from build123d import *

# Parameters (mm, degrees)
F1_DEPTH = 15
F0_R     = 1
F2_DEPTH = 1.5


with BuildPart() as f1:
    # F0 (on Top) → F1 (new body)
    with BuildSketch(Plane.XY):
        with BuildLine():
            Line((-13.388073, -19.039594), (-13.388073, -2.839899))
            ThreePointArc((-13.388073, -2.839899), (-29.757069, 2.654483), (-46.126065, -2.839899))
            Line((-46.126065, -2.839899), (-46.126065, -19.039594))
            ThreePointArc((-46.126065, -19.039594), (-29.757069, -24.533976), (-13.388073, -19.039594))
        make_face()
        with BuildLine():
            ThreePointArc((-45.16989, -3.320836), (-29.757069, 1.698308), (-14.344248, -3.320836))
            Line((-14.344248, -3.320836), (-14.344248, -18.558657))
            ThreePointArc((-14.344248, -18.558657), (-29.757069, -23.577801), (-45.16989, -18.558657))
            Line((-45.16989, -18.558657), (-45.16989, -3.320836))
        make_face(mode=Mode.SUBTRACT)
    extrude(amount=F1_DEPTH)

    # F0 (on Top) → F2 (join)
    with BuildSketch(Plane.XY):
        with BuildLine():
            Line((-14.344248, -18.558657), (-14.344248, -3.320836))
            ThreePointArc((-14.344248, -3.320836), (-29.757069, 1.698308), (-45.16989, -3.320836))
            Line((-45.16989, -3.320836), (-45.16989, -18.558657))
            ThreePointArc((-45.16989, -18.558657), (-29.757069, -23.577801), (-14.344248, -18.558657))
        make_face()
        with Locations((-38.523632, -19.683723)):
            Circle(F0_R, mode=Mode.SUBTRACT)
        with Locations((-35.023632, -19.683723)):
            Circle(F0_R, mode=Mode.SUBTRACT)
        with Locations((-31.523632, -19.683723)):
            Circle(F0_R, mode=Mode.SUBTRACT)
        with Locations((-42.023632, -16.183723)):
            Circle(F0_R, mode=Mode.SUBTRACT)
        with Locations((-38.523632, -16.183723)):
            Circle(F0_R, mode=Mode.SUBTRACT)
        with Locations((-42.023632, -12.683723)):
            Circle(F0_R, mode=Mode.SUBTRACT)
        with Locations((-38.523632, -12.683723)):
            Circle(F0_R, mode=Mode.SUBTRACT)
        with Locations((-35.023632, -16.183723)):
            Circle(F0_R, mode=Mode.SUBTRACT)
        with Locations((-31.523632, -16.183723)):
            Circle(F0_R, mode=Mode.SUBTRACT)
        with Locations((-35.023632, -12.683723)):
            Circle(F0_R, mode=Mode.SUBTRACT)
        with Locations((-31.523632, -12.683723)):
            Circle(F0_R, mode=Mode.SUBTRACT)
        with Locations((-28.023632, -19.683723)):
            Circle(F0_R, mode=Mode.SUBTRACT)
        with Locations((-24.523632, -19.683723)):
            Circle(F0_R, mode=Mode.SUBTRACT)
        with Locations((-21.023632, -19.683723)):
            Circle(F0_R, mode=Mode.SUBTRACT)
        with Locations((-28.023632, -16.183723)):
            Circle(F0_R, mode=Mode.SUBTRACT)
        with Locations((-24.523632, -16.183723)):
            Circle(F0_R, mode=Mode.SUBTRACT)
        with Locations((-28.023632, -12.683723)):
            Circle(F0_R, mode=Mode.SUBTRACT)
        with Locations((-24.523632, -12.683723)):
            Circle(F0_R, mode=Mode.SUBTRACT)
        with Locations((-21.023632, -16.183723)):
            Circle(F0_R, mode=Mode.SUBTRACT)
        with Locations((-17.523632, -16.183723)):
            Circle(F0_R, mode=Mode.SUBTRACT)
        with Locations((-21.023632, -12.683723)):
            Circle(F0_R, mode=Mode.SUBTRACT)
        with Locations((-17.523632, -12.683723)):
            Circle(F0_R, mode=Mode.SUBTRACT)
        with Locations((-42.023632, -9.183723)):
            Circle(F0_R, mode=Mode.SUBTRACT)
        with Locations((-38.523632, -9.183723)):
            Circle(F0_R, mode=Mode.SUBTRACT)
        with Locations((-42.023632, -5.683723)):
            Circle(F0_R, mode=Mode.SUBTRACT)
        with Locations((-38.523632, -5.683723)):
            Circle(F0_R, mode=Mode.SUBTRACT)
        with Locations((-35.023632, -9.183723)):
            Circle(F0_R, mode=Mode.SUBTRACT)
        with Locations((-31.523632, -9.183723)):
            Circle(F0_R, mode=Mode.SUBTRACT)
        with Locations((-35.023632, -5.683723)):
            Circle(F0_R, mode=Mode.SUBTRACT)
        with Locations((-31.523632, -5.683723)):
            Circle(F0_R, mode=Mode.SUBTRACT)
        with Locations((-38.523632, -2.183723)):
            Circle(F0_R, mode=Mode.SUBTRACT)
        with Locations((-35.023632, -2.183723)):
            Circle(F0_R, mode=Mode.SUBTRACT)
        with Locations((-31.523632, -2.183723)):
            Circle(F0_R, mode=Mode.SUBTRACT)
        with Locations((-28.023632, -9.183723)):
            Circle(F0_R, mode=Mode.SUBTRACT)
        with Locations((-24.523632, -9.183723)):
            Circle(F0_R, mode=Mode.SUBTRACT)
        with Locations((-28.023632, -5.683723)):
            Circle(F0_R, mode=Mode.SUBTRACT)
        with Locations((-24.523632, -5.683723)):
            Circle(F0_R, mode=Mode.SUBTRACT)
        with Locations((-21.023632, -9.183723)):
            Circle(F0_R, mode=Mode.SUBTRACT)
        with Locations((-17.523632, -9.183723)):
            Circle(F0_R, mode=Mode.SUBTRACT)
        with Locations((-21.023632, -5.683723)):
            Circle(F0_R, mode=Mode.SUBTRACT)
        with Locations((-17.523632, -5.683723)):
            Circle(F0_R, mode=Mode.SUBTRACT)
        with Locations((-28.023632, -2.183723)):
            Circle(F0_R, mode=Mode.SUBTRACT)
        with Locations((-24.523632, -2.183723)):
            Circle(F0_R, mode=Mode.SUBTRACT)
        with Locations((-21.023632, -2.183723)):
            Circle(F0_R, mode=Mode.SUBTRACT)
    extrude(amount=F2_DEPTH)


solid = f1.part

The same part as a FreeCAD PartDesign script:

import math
import FreeCAD as App
import Part
import Sketcher

doc = App.newDocument("Part")
body = doc.addObject("PartDesign::Body", "Body")

# Sketch on XY plane
sketch1 = doc.addObject("Sketcher::SketchObject", "Sketch")
body.addObject(sketch1)
sketch1.AttachmentSupport = (doc.XY_Plane, [""])
sketch1.MapMode = "FlatFace"
sketch1.addGeometry(Part.LineSegment(App.Vector(-13, -19, 0), App.Vector(-13, -3, 0)), False)
sketch1.addGeometry(Part.ArcOfCircle(Part.Circle(App.Vector(-30, -24, 0), App.Vector(0, 0, 1), 27), math.radians(53), math.radians(127)), False)
sketch1.addGeometry(Part.LineSegment(App.Vector(-46, -3, 0), App.Vector(-46, -19, 0)), False)
sketch1.addGeometry(Part.ArcOfCircle(Part.Circle(App.Vector(-30, 3, 0), App.Vector(0, 0, 1), 27), math.radians(-127), math.radians(-53)), False)
sketch1.addGeometry(Part.LineSegment(App.Vector(-45, -19, 0), App.Vector(-45, -3, 0)), False)
sketch1.addGeometry(Part.ArcOfCircle(Part.Circle(App.Vector(-30, -24, 0), App.Vector(0, 0, 1), 26), math.radians(54), math.radians(126)), False)
sketch1.addGeometry(Part.LineSegment(App.Vector(-14, -3, 0), App.Vector(-14, -19, 0)), False)
sketch1.addGeometry(Part.ArcOfCircle(Part.Circle(App.Vector(-30, 3, 0), App.Vector(0, 0, 1), 26), math.radians(-126), math.radians(-54)), False)
sketch1.addConstraint(Sketcher.Constraint("Coincident", 0, 2, 1, 1))
sketch1.addConstraint(Sketcher.Constraint("Coincident", 1, 2, 2, 1))
sketch1.addConstraint(Sketcher.Constraint("Coincident", 2, 2, 3, 1))
sketch1.addConstraint(Sketcher.Constraint("Coincident", 3, 2, 0, 1))
sketch1.addConstraint(Sketcher.Constraint("Coincident", 4, 2, 5, 2))
sketch1.addConstraint(Sketcher.Constraint("Coincident", 5, 1, 6, 1))
sketch1.addConstraint(Sketcher.Constraint("Coincident", 6, 2, 7, 2))
sketch1.addConstraint(Sketcher.Constraint("Coincident", 7, 1, 4, 1))
sketch1.addConstraint(Sketcher.Constraint("Vertical", 0))
sketch1.addConstraint(Sketcher.Constraint("Vertical", 2))
sketch1.addConstraint(Sketcher.Constraint("Vertical", 4))
sketch1.addConstraint(Sketcher.Constraint("Vertical", 6))
sketch1.addConstraint(Sketcher.Constraint("Coincident", 5, 3, 1, 3))
sketch1.addConstraint(Sketcher.Constraint("Coincident", 7, 3, 3, 3))
sketch1.addConstraint(Sketcher.Constraint("Equal", 1, 3))
sketch1.addConstraint(Sketcher.Constraint("Equal", 5, 7))
sketch1.addConstraint(Sketcher.Constraint("Horizontal", 0, 2, 1, 2))
sketch1.addConstraint(Sketcher.Constraint("Horizontal", 2, 2, 3, 2))
sketch1.addConstraint(Sketcher.Constraint("Horizontal", 4, 2, 5, 1))
sketch1.addConstraint(Sketcher.Constraint("Radius", 5, 26.174469))
sketch1.addConstraint(Sketcher.Constraint("Radius", 1, 27.130646))
sketch1.addConstraint(Sketcher.Constraint("DistanceY", 4, 1, 4, 2, 15.237821))
sketch1.addConstraint(Sketcher.Constraint("DistanceY", 0, 2, -1, 1, 2.839899))
sketch1.addConstraint(Sketcher.Constraint("DistanceY", 0, 1, 0, 2, 16.199695))
sketch1.addConstraint(Sketcher.Constraint("DistanceX", 1, 3, -1, 1, 29.757069))
sketch1.addConstraint(Sketcher.Constraint("DistanceY", -1, 1, 3, 3, 2.59667))
pad1 = doc.addObject("PartDesign::Pad", "Pad")
body.addObject(pad1)
pad1.Profile = sketch1
pad1.Length = 15

# Sketch on XY plane
sketch2 = doc.addObject("Sketcher::SketchObject", "Sketch001")
body.addObject(sketch2)
sketch2.AttachmentSupport = (doc.XY_Plane, [""])
sketch2.MapMode = "FlatFace"
sketch2.addGeometry(Part.LineSegment(App.Vector(-14.3, -18.6, 0), App.Vector(-14.3, -3.3, 0)), False)
sketch2.addGeometry(Part.ArcOfCircle(Part.Circle(App.Vector(-29.8, -24.5, 0), App.Vector(0, 0, 1), 26.2), math.radians(54), math.radians(126)), False)
sketch2.addGeometry(Part.LineSegment(App.Vector(-45.2, -3.3, 0), App.Vector(-45.2, -18.6, 0)), False)
sketch2.addGeometry(Part.ArcOfCircle(Part.Circle(App.Vector(-29.8, 2.6, 0), App.Vector(0, 0, 1), 26.2), math.radians(-126), math.radians(-54)), False)
sketch2.addGeometry(Part.Circle(App.Vector(-38.5, -19.7, 0), App.Vector(0, 0, 1), 1), False)
sketch2.addGeometry(Part.Circle(App.Vector(-42, -16.2, 0), App.Vector(0, 0, 1), 1), False)
sketch2.addGeometry(Part.Circle(App.Vector(-38.5, -16.2, 0), App.Vector(0, 0, 1), 1), False)
sketch2.addGeometry(Part.Circle(App.Vector(-35, -19.7, 0), App.Vector(0, 0, 1), 1), False)
sketch2.addGeometry(Part.Circle(App.Vector(-31.5, -19.7, 0), App.Vector(0, 0, 1), 1), False)
sketch2.addGeometry(Part.Circle(App.Vector(-35, -16.2, 0), App.Vector(0, 0, 1), 1), False)
sketch2.addGeometry(Part.Circle(App.Vector(-31.5, -16.2, 0), App.Vector(0, 0, 1), 1), False)
sketch2.addGeometry(Part.Circle(App.Vector(-42, -12.7, 0), App.Vector(0, 0, 1), 1), False)
sketch2.addGeometry(Part.Circle(App.Vector(-38.5, -12.7, 0), App.Vector(0, 0, 1), 1), False)
sketch2.addGeometry(Part.Circle(App.Vector(-35, -12.7, 0), App.Vector(0, 0, 1), 1), False)
sketch2.addGeometry(Part.Circle(App.Vector(-31.5, -12.7, 0), App.Vector(0, 0, 1), 1), False)
sketch2.addGeometry(Part.Circle(App.Vector(-28, -19.7, 0), App.Vector(0, 0, 1), 1), False)
sketch2.addGeometry(Part.Circle(App.Vector(-24.5, -19.7, 0), App.Vector(0, 0, 1), 1), False)
sketch2.addGeometry(Part.Circle(App.Vector(-28, -16.2, 0), App.Vector(0, 0, 1), 1), False)
sketch2.addGeometry(Part.Circle(App.Vector(-24.5, -16.2, 0), App.Vector(0, 0, 1), 1), False)
sketch2.addGeometry(Part.Circle(App.Vector(-21, -19.7, 0), App.Vector(0, 0, 1), 1), False)
sketch2.addGeometry(Part.Circle(App.Vector(-21, -16.2, 0), App.Vector(0, 0, 1), 1), False)
sketch2.addGeometry(Part.Circle(App.Vector(-17.5, -16.2, 0), App.Vector(0, 0, 1), 1), False)
sketch2.addGeometry(Part.Circle(App.Vector(-28, -12.7, 0), App.Vector(0, 0, 1), 1), False)
sketch2.addGeometry(Part.Circle(App.Vector(-24.5, -12.7, 0), App.Vector(0, 0, 1), 1), False)
sketch2.addGeometry(Part.Circle(App.Vector(-21, -12.7, 0), App.Vector(0, 0, 1), 1), False)
sketch2.addGeometry(Part.Circle(App.Vector(-17.5, -12.7, 0), App.Vector(0, 0, 1), 1), False)
sketch2.addGeometry(Part.Circle(App.Vector(-42, -9.2, 0), App.Vector(0, 0, 1), 1), False)
sketch2.addGeometry(Part.Circle(App.Vector(-38.5, -9.2, 0), App.Vector(0, 0, 1), 1), False)
sketch2.addGeometry(Part.Circle(App.Vector(-35, -9.2, 0), App.Vector(0, 0, 1), 1), False)
sketch2.addGeometry(Part.Circle(App.Vector(-31.5, -9.2, 0), App.Vector(0, 0, 1), 1), False)
sketch2.addGeometry(Part.Circle(App.Vector(-42, -5.7, 0), App.Vector(0, 0, 1), 1), False)
sketch2.addGeometry(Part.Circle(App.Vector(-38.5, -5.7, 0), App.Vector(0, 0, 1), 1), False)
sketch2.addGeometry(Part.Circle(App.Vector(-38.5, -2.2, 0), App.Vector(0, 0, 1), 1), False)
sketch2.addGeometry(Part.Circle(App.Vector(-35, -5.7, 0), App.Vector(0, 0, 1), 1), False)
sketch2.addGeometry(Part.Circle(App.Vector(-31.5, -5.7, 0), App.Vector(0, 0, 1), 1), False)
sketch2.addGeometry(Part.Circle(App.Vector(-35, -2.2, 0), App.Vector(0, 0, 1), 1), False)
sketch2.addGeometry(Part.Circle(App.Vector(-31.5, -2.2, 0), App.Vector(0, 0, 1), 1), False)
sketch2.addGeometry(Part.Circle(App.Vector(-28, -9.2, 0), App.Vector(0, 0, 1), 1), False)
sketch2.addGeometry(Part.Circle(App.Vector(-24.5, -9.2, 0), App.Vector(0, 0, 1), 1), False)
sketch2.addGeometry(Part.Circle(App.Vector(-21, -9.2, 0), App.Vector(0, 0, 1), 1), False)
sketch2.addGeometry(Part.Circle(App.Vector(-17.5, -9.2, 0), App.Vector(0, 0, 1), 1), False)
sketch2.addGeometry(Part.Circle(App.Vector(-28, -5.7, 0), App.Vector(0, 0, 1), 1), False)
sketch2.addGeometry(Part.Circle(App.Vector(-24.5, -5.7, 0), App.Vector(0, 0, 1), 1), False)
sketch2.addGeometry(Part.Circle(App.Vector(-28, -2.2, 0), App.Vector(0, 0, 1), 1), False)
sketch2.addGeometry(Part.Circle(App.Vector(-24.5, -2.2, 0), App.Vector(0, 0, 1), 1), False)
sketch2.addGeometry(Part.Circle(App.Vector(-21, -5.7, 0), App.Vector(0, 0, 1), 1), False)
sketch2.addGeometry(Part.Circle(App.Vector(-17.5, -5.7, 0), App.Vector(0, 0, 1), 1), False)
sketch2.addGeometry(Part.Circle(App.Vector(-21, -2.2, 0), App.Vector(0, 0, 1), 1), False)
sketch2.addConstraint(Sketcher.Constraint("Coincident", 0, 2, 1, 1))
sketch2.addConstraint(Sketcher.Constraint("Coincident", 1, 2, 2, 1))
sketch2.addConstraint(Sketcher.Constraint("Coincident", 2, 2, 3, 1))
sketch2.addConstraint(Sketcher.Constraint("Coincident", 3, 2, 0, 1))
sketch2.addConstraint(Sketcher.Constraint("Vertical", 0))
sketch2.addConstraint(Sketcher.Constraint("Vertical", 2))
sketch2.addConstraint(Sketcher.Constraint("Equal", 1, 3))
sketch2.addConstraint(Sketcher.Constraint("Equal", 4, 5))
sketch2.addConstraint(Sketcher.Constraint("Equal", 5, 6))
sketch2.addConstraint(Sketcher.Constraint("Equal", 6, 7))
sketch2.addConstraint(Sketcher.Constraint("Equal", 7, 8))
sketch2.addConstraint(Sketcher.Constraint("Equal", 8, 9))
sketch2.addConstraint(Sketcher.Constraint("Equal", 9, 10))
sketch2.addConstraint(Sketcher.Constraint("Equal", 10, 11))
sketch2.addConstraint(Sketcher.Constraint("Equal", 11, 12))
sketch2.addConstraint(Sketcher.Constraint("Equal", 12, 13))
sketch2.addConstraint(Sketcher.Constraint("Equal", 13, 14))
sketch2.addConstraint(Sketcher.Constraint("Equal", 14, 15))
sketch2.addConstraint(Sketcher.Constraint("Equal", 15, 16))
sketch2.addConstraint(Sketcher.Constraint("Equal", 16, 17))
sketch2.addConstraint(Sketcher.Constraint("Equal", 17, 18))
sketch2.addConstraint(Sketcher.Constraint("Equal", 18, 19))
sketch2.addConstraint(Sketcher.Constraint("Equal", 19, 20))
sketch2.addConstraint(Sketcher.Constraint("Equal", 20, 21))
sketch2.addConstraint(Sketcher.Constraint("Equal", 21, 22))
sketch2.addConstraint(Sketcher.Constraint("Equal", 22, 23))
sketch2.addConstraint(Sketcher.Constraint("Equal", 23, 24))
sketch2.addConstraint(Sketcher.Constraint("Equal", 24, 25))
sketch2.addConstraint(Sketcher.Constraint("Equal", 25, 26))
sketch2.addConstraint(Sketcher.Constraint("Equal", 26, 27))
sketch2.addConstraint(Sketcher.Constraint("Equal", 27, 28))
sketch2.addConstraint(Sketcher.Constraint("Equal", 28, 29))
sketch2.addConstraint(Sketcher.Constraint("Equal", 29, 30))
sketch2.addConstraint(Sketcher.Constraint("Equal", 30, 31))
sketch2.addConstraint(Sketcher.Constraint("Equal", 31, 32))
sketch2.addConstraint(Sketcher.Constraint("Equal", 32, 33))
sketch2.addConstraint(Sketcher.Constraint("Equal", 33, 34))
sketch2.addConstraint(Sketcher.Constraint("Equal", 34, 35))
sketch2.addConstraint(Sketcher.Constraint("Equal", 35, 36))
sketch2.addConstraint(Sketcher.Constraint("Equal", 36, 37))
sketch2.addConstraint(Sketcher.Constraint("Equal", 37, 38))
sketch2.addConstraint(Sketcher.Constraint("Equal", 38, 39))
sketch2.addConstraint(Sketcher.Constraint("Equal", 39, 40))
sketch2.addConstraint(Sketcher.Constraint("Equal", 40, 41))
sketch2.addConstraint(Sketcher.Constraint("Equal", 41, 42))
sketch2.addConstraint(Sketcher.Constraint("Equal", 42, 43))
sketch2.addConstraint(Sketcher.Constraint("Equal", 43, 44))
sketch2.addConstraint(Sketcher.Constraint("Equal", 44, 45))
sketch2.addConstraint(Sketcher.Constraint("Equal", 45, 46))
sketch2.addConstraint(Sketcher.Constraint("Equal", 46, 47))
sketch2.addConstraint(Sketcher.Constraint("Horizontal", 5, 3, 6, 3))
sketch2.addConstraint(Sketcher.Constraint("Horizontal", 4, 3, 7, 3))
sketch2.addConstraint(Sketcher.Constraint("Horizontal", 7, 3, 8, 3))
sketch2.addConstraint(Sketcher.Constraint("Horizontal", 6, 3, 9, 3))
sketch2.addConstraint(Sketcher.Constraint("Horizontal", 9, 3, 10, 3))
sketch2.addConstraint(Sketcher.Constraint("Horizontal", 11, 3, 12, 3))
sketch2.addConstraint(Sketcher.Constraint("Horizontal", 12, 3, 13, 3))
sketch2.addConstraint(Sketcher.Constraint("Horizontal", 13, 3, 14, 3))
sketch2.addConstraint(Sketcher.Constraint("Horizontal", 8, 3, 15, 3))
sketch2.addConstraint(Sketcher.Constraint("Horizontal", 15, 3, 16, 3))
sketch2.addConstraint(Sketcher.Constraint("Horizontal", 10, 3, 17, 3))
sketch2.addConstraint(Sketcher.Constraint("Horizontal", 17, 3, 18, 3))
sketch2.addConstraint(Sketcher.Constraint("Horizontal", 16, 3, 19, 3))
sketch2.addConstraint(Sketcher.Constraint("Horizontal", 18, 3, 20, 3))
sketch2.addConstraint(Sketcher.Constraint("Horizontal", 20, 3, 21, 3))
sketch2.addConstraint(Sketcher.Constraint("Horizontal", 14, 3, 22, 3))
sketch2.addConstraint(Sketcher.Constraint("Horizontal", 22, 3, 23, 3))
sketch2.addConstraint(Sketcher.Constraint("Horizontal", 23, 3, 24, 3))
sketch2.addConstraint(Sketcher.Constraint("Horizontal", 24, 3, 25, 3))
sketch2.addConstraint(Sketcher.Constraint("Horizontal", 26, 3, 27, 3))
sketch2.addConstraint(Sketcher.Constraint("Horizontal", 27, 3, 28, 3))
sketch2.addConstraint(Sketcher.Constraint("Horizontal", 28, 3, 29, 3))
sketch2.addConstraint(Sketcher.Constraint("Horizontal", 30, 3, 31, 3))
sketch2.addConstraint(Sketcher.Constraint("Horizontal", 31, 3, 33, 3))
sketch2.addConstraint(Sketcher.Constraint("Horizontal", 33, 3, 34, 3))
sketch2.addConstraint(Sketcher.Constraint("Horizontal", 32, 3, 35, 3))
sketch2.addConstraint(Sketcher.Constraint("Horizontal", 35, 3, 36, 3))
sketch2.addConstraint(Sketcher.Constraint("Horizontal", 29, 3, 37, 3))
sketch2.addConstraint(Sketcher.Constraint("Horizontal", 37, 3, 38, 3))
sketch2.addConstraint(Sketcher.Constraint("Horizontal", 38, 3, 39, 3))
sketch2.addConstraint(Sketcher.Constraint("Horizontal", 39, 3, 40, 3))
sketch2.addConstraint(Sketcher.Constraint("Horizontal", 34, 3, 41, 3))
sketch2.addConstraint(Sketcher.Constraint("Horizontal", 41, 3, 42, 3))
sketch2.addConstraint(Sketcher.Constraint("Horizontal", 36, 3, 43, 3))
sketch2.addConstraint(Sketcher.Constraint("Horizontal", 43, 3, 44, 3))
sketch2.addConstraint(Sketcher.Constraint("Horizontal", 42, 3, 45, 3))
sketch2.addConstraint(Sketcher.Constraint("Horizontal", 45, 3, 46, 3))
sketch2.addConstraint(Sketcher.Constraint("Horizontal", 44, 3, 47, 3))
sketch2.addConstraint(Sketcher.Constraint("Horizontal", 0, 2, 1, 2))
sketch2.addConstraint(Sketcher.Constraint("Horizontal", 2, 2, 3, 2))
sketch2.addConstraint(Sketcher.Constraint("Vertical", 4, 3, 6, 3))
sketch2.addConstraint(Sketcher.Constraint("Vertical", 7, 3, 9, 3))
sketch2.addConstraint(Sketcher.Constraint("Vertical", 8, 3, 10, 3))
sketch2.addConstraint(Sketcher.Constraint("Vertical", 5, 3, 11, 3))
sketch2.addConstraint(Sketcher.Constraint("Vertical", 6, 3, 12, 3))
sketch2.addConstraint(Sketcher.Constraint("Vertical", 9, 3, 13, 3))
sketch2.addConstraint(Sketcher.Constraint("Vertical", 10, 3, 14, 3))
sketch2.addConstraint(Sketcher.Constraint("Vertical", 15, 3, 17, 3))
sketch2.addConstraint(Sketcher.Constraint("Vertical", 16, 3, 18, 3))
sketch2.addConstraint(Sketcher.Constraint("Vertical", 19, 3, 20, 3))
sketch2.addConstraint(Sketcher.Constraint("Vertical", 17, 3, 22, 3))
sketch2.addConstraint(Sketcher.Constraint("Vertical", 18, 3, 23, 3))
sketch2.addConstraint(Sketcher.Constraint("Vertical", 20, 3, 24, 3))
sketch2.addConstraint(Sketcher.Constraint("Vertical", 21, 3, 25, 3))
sketch2.addConstraint(Sketcher.Constraint("Vertical", 11, 3, 26, 3))
sketch2.addConstraint(Sketcher.Constraint("Vertical", 12, 3, 27, 3))
sketch2.addConstraint(Sketcher.Constraint("Vertical", 13, 3, 28, 3))
sketch2.addConstraint(Sketcher.Constraint("Vertical", 14, 3, 29, 3))
sketch2.addConstraint(Sketcher.Constraint("Vertical", 26, 3, 30, 3))
sketch2.addConstraint(Sketcher.Constraint("Vertical", 27, 3, 31, 3))
sketch2.addConstraint(Sketcher.Constraint("Vertical", 31, 3, 32, 3))
sketch2.addConstraint(Sketcher.Constraint("Vertical", 28, 3, 33, 3))
sketch2.addConstraint(Sketcher.Constraint("Vertical", 29, 3, 34, 3))
sketch2.addConstraint(Sketcher.Constraint("Vertical", 33, 3, 35, 3))
sketch2.addConstraint(Sketcher.Constraint("Vertical", 34, 3, 36, 3))
sketch2.addConstraint(Sketcher.Constraint("Vertical", 22, 3, 37, 3))
sketch2.addConstraint(Sketcher.Constraint("Vertical", 23, 3, 38, 3))
sketch2.addConstraint(Sketcher.Constraint("Vertical", 24, 3, 39, 3))
sketch2.addConstraint(Sketcher.Constraint("Vertical", 25, 3, 40, 3))
sketch2.addConstraint(Sketcher.Constraint("Vertical", 37, 3, 41, 3))
sketch2.addConstraint(Sketcher.Constraint("Vertical", 38, 3, 42, 3))
sketch2.addConstraint(Sketcher.Constraint("Vertical", 41, 3, 43, 3))
sketch2.addConstraint(Sketcher.Constraint("Vertical", 42, 3, 44, 3))
sketch2.addConstraint(Sketcher.Constraint("Vertical", 39, 3, 45, 3))
sketch2.addConstraint(Sketcher.Constraint("Vertical", 40, 3, 46, 3))
sketch2.addConstraint(Sketcher.Constraint("Vertical", 45, 3, 47, 3))
sketch2.addConstraint(Sketcher.Constraint("Diameter", 4, 2.0))
sketch2.addConstraint(Sketcher.Constraint("DistanceX", 5, 3, 7, 3, 7.0))
sketch2.addConstraint(Sketcher.Constraint("DistanceX", 4, 3, 8, 3, 7.0))
sketch2.addConstraint(Sketcher.Constraint("DistanceY", 4, 3, 11, 3, 7.0))
sketch2.addConstraint(Sketcher.Constraint("DistanceX", 7, 3, 15, 3, 7.0))
sketch2.addConstraint(Sketcher.Constraint("DistanceX", 8, 3, 16, 3, 7.0))
sketch2.addConstraint(Sketcher.Constraint("DistanceX", 15, 3, 19, 3, 7.0))
sketch2.addConstraint(Sketcher.Constraint("DistanceX", 18, 3, 21, 3, 7.0))
sketch2.addConstraint(Sketcher.Constraint("DistanceY", 5, 3, 26, 3, 7.0))
sketch2.addConstraint(Sketcher.Constraint("DistanceY", 11, 3, 30, 3, 7.0))
sketch2.addConstraint(Sketcher.Constraint("DistanceY", 27, 3, 32, 3, 7.0))
sketch2.addConstraint(Sketcher.Constraint("DistanceX", 5, 3, 4, 3, 3.5))
sketch2.addConstraint(Sketcher.Constraint("DistanceY", 4, 3, 5, 3, 3.5))
sketch2.addConstraint(Sketcher.Constraint("Radius", 1, 26.174469))
sketch2.addConstraint(Sketcher.Constraint("DistanceY", 0, 1, 0, 2, 15.237821))
sketch2.addConstraint(Sketcher.Constraint("DistanceX", 1, 3, -1, 1, 29.757069))
sketch2.addConstraint(Sketcher.Constraint("DistanceY", 1, 3, -1, 1, 24.476161))
sketch2.addConstraint(Sketcher.Constraint("DistanceX", 8, 3, -1, 1, 31.523632))
sketch2.addConstraint(Sketcher.Constraint("DistanceX", 1, 2, -1, 1, 45.16989))
sketch2.addConstraint(Sketcher.Constraint("DistanceY", 4, 3, 3, 3, 22.280391))
pad2 = doc.addObject("PartDesign::Pad", "Pad001")
body.addObject(pad2)
pad2.Profile = sketch2
pad2.Length = 1.5

doc.recompute()
